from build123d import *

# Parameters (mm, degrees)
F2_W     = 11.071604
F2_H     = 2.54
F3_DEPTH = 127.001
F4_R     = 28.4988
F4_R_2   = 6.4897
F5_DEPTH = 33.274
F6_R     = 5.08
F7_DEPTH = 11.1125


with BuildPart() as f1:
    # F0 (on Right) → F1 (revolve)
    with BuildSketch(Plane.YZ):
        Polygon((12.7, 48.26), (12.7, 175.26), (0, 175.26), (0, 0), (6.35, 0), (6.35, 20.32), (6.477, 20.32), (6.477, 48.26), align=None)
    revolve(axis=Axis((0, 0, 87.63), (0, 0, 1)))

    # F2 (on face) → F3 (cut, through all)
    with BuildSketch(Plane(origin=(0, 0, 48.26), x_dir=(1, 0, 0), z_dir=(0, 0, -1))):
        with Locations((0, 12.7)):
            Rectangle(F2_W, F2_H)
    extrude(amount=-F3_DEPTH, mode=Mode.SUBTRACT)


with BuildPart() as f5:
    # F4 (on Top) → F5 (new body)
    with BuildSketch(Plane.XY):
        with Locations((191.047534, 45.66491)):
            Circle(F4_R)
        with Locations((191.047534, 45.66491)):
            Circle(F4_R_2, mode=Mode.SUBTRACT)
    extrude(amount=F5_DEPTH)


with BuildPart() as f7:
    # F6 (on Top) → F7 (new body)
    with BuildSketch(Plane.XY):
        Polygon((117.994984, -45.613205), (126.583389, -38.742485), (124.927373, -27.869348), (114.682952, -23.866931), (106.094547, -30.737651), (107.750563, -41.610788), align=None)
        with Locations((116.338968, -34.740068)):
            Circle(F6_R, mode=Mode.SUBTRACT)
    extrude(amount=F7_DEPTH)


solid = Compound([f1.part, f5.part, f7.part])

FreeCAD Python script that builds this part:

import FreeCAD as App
import Part
import Sketcher
Q = App.Units.Quantity

doc = App.newDocument("Part")
body = doc.addObject("PartDesign::Body", "Body")

# Sketch on YZ plane
sketch1 = doc.addObject("Sketcher::SketchObject", "Sketch")
body.addObject(sketch1)
sketch1.AttachmentSupport = (doc.YZ_Plane, [""])
sketch1.MapMode = "FlatFace"
sketch1.addGeometry(Part.LineSegment(App.Vector(12.7, 48.26, 0), App.Vector(12.7, 175.26, 0)), False)
sketch1.addGeometry(Part.LineSegment(App.Vector(12.7, 175.26, 0), App.Vector(0, 175.26, 0)), False)
sketch1.addGeometry(Part.LineSegment(App.Vector(0, 175.26, 0), App.Vector(0, 0, 0)), False)
sketch1.addGeometry(Part.LineSegment(App.Vector(0, 0, 0), App.Vector(6.35, 0, 0)), False)
sketch1.addGeometry(Part.LineSegment(App.Vector(6.35, 0, 0), App.Vector(6.35, 20.32, 0)), False)
sketch1.addGeometry(Part.LineSegment(App.Vector(6.35, 20.32, 0), App.Vector(6.477, 20.32, 0)), False)
sketch1.addGeometry(Part.LineSegment(App.Vector(6.477, 20.32, 0), App.Vector(6.477, 48.26, 0)), False)
sketch1.addGeometry(Part.LineSegment(App.Vector(6.477, 48.26, 0), App.Vector(12.7, 48.26, 0)), False)
sketch1.addConstraint(Sketcher.Constraint("Coincident", 0, 2, 1, 1))
sketch1.addConstraint(Sketcher.Constraint("Coincident", 1, 2, 2, 1))
sketch1.addConstraint(Sketcher.Constraint("Coincident", 2, 2, 3, 1))
sketch1.addConstraint(Sketcher.Constraint("Coincident", 3, 2, 4, 1))
sketch1.addConstraint(Sketcher.Constraint("Coincident", 4, 2, 5, 1))
sketch1.addConstraint(Sketcher.Constraint("Coincident", 5, 2, 6, 1))
sketch1.addConstraint(Sketcher.Constraint("Coincident", 6, 2, 7, 1))
sketch1.addConstraint(Sketcher.Constraint("Coincident", 7, 2, 0, 1))
sketch1.addConstraint(Sketcher.Constraint("Vertical", 0))
sketch1.addConstraint(Sketcher.Constraint("Horizontal", 1))
sketch1.addConstraint(Sketcher.Constraint("Vertical", 2))
sketch1.addConstraint(Sketcher.Constraint("Horizontal", 3))
sketch1.addConstraint(Sketcher.Constraint("Vertical", 4))
sketch1.addConstraint(Sketcher.Constraint("Horizontal", 5))
sketch1.addConstraint(Sketcher.Constraint("Vertical", 6))
sketch1.addConstraint(Sketcher.Constraint("Horizontal", 7))
sketch1.addConstraint(Sketcher.Constraint("Coincident", 2, 2, -1, 1))
sketch1.addConstraint(Sketcher.Constraint("DistanceY", 0, 1, 0, 2, Q("5 in")))
sketch1.addConstraint(Sketcher.Constraint("DistanceX", 1, 2, 1, 1, Q("0.5 in")))
sketch1.addConstraint(Sketcher.Constraint("DistanceY", 2, 2, 2, 1, Q("6.9 in")))
sketch1.addConstraint(Sketcher.Constraint("DistanceY", 4, 1, 4, 2, Q("0.8 in")))
sketch1.addConstraint(Sketcher.Constraint("DistanceX", 3, 1, 3, 2, Q("0.25 in")))
sketch1.addConstraint(Sketcher.Constraint("DistanceX", 5, 1, 5, 2, Q("0.005 in")))
revolution = doc.addObject("PartDesign::Revolution", "Revolution")
body.addObject(revolution)
revolution.Profile = sketch1
revolution.ReferenceAxis = (sketch1, ["V_Axis"])
revolution.Angle = 360

# Sketch on XY plane
sketch2 = doc.addObject("Sketcher::SketchObject", "Sketch001")
body.addObject(sketch2)
sketch2.AttachmentSupport = (doc.XY_Plane, [""])
sketch2.MapMode = "FlatFace"
sketch2.AttachmentOffset = App.Placement(App.Vector(0, 0, 1.9 * 25.4), App.Rotation())
sketch2.addGeometry(Part.LineSegment(App.Vector(-5.535802, -13.97, 0), App.Vector(-5.535802, -11.43, 0)), False)
sketch2.addGeometry(Part.LineSegment(App.Vector(-5.535802, -11.43, 0), App.Vector(5.535802, -11.43, 0)), False)
sketch2.addGeometry(Part.LineSegment(App.Vector(5.535802, -11.43, 0), App.Vector(5.535802, -13.97, 0)), False)
sketch2.addGeometry(Part.LineSegment(App.Vector(5.535802, -13.97, 0), App.Vector(-5.535802, -13.97, 0)), False)
sketch2.addConstraint(Sketcher.Constraint("Coincident", 0, 2, 1, 1))
sketch2.addConstraint(Sketcher.Constraint("Coincident", 1, 2, 2, 1))
sketch2.addConstraint(Sketcher.Constraint("Coincident", 2, 2, 3, 1))
sketch2.addConstraint(Sketcher.Constraint("Coincident", 3, 2, 0, 1))
sketch2.addConstraint(Sketcher.Constraint("Vertical", 0))
sketch2.addConstraint(Sketcher.Constraint("Horizontal", 1))
sketch2.addConstraint(Sketcher.Constraint("Vertical", 2))
sketch2.addConstraint(Sketcher.Constraint("Horizontal", 3))
sketch2.addConstraint(Sketcher.Constraint("DistanceY", 0, 1, 0, 2, Q("0.1 in")))
sketch2.addConstraint(Sketcher.Constraint("DistanceY", 0, 2, -1, 1, Q("0.45 in")))
sketch2.addConstraint(Sketcher.Constraint("DistanceX", 1, 1, 1, 2, 11.071604))
sketch2.addConstraint(Sketcher.Constraint("DistanceX", 0, 2, -1, 1, 5.535802))
pocket1 = doc.addObject("PartDesign::Pocket", "Pocket")
body.addObject(pocket1)
pocket1.Profile = sketch2
pocket1.Type = "ThroughAll"
pocket1.Reversed = True
body2 = doc.addObject("PartDesign::Body", "Body001")

# Sketch on XY plane
sketch3 = doc.addObject("Sketcher::SketchObject", "Sketch002")
body2.addObject(sketch3)
sketch3.AttachmentSupport = (doc.getObject("XY_Plane001"), [""])
sketch3.MapMode = "FlatFace"
sketch3.addGeometry(Part.Circle(App.Vector(191.047534, 45.66491, 0), App.Vector(0, 0, 1), 28.4988), False)
sketch3.addGeometry(Part.Circle(App.Vector(191.047534, 45.66491, 0), App.Vector(0, 0, 1), 6.4897), False)
sketch3.addConstraint(Sketcher.Constraint("Coincident", 1, 3, 0, 3))
sketch3.addConstraint(Sketcher.Constraint("Diameter", 0, Q("2.244 in")))
sketch3.addConstraint(Sketcher.Constraint("Diameter", 1, Q("0.511 in")))
sketch3.addConstraint(Sketcher.Constraint("DistanceY", -1, 1, 0, 3, 45.66491))
sketch3.addConstraint(Sketcher.Constraint("DistanceX", -1, 1, 0, 3, 191.047534))
pad1 = doc.addObject("PartDesign::Pad", "Pad")
body2.addObject(pad1)
pad1.Profile = sketch3
pad1.Length = Q("1.31 in")
body3 = doc.addObject("PartDesign::Body", "Body002")

# Sketch on XY plane
sketch4 = doc.addObject("Sketcher::SketchObject", "Sketch003")
body3.addObject(sketch4)
sketch4.AttachmentSupport = (doc.getObject("XY_Plane002"), [""])
sketch4.MapMode = "FlatFace"
sketch4.addGeometry(Part.LineSegment(App.Vector(117.994984, -45.613205, 0), App.Vector(126.583389, -38.742485, 0)), False)
sketch4.addGeometry(Part.LineSegment(App.Vector(126.583389, -38.742485, 0), App.Vector(124.927373, -27.869348, 0)), False)
sketch4.addGeometry(Part.LineSegment(App.Vector(124.927373, -27.869348, 0), App.Vector(114.682952, -23.866931, 0)), False)
sketch4.addGeometry(Part.LineSegment(App.Vector(114.682952, -23.866931, 0), App.Vector(106.094547, -30.737651, 0)), False)
sketch4.addGeometry(Part.LineSegment(App.Vector(106.094547, -30.737651, 0), App.Vector(107.750563, -41.610788, 0)), False)
sketch4.addGeometry(Part.LineSegment(App.Vector(107.750563, -41.610788, 0), App.Vector(117.994984, -45.613205, 0)), False)
sketch4.addGeometry(Part.Circle(App.Vector(116.338968, -34.740068, 0), App.Vector(0, 0, 1), 5.08), False)
sketch4.addConstraint(Sketcher.Constraint("Coincident", 0, 2, 1, 1))
sketch4.addConstraint(Sketcher.Constraint("Coincident", 1, 2, 2, 1))
sketch4.addConstraint(Sketcher.Constraint("Coincident", 2, 2, 3, 1))
sketch4.addConstraint(Sketcher.Constraint("Coincident", 3, 2, 4, 1))
sketch4.addConstraint(Sketcher.Constraint("Coincident", 4, 2, 5, 1))
sketch4.addConstraint(Sketcher.Constraint("Coincident", 5, 2, 0, 1))
sketch4.addConstraint(Sketcher.Constraint("Parallel", 0, 3))
sketch4.addConstraint(Sketcher.Constraint("Parallel", 1, 4))
sketch4.addConstraint(Sketcher.Constraint("Parallel", 2, 5))
sketch4.addConstraint(Sketcher.Constraint("Equal", 0, 1))
sketch4.addConstraint(Sketcher.Constraint("Equal", 1, 2))
sketch4.addConstraint(Sketcher.Constraint("Equal", 2, 3))
sketch4.addConstraint(Sketcher.Constraint("Diameter", 6, Q("0.4 in")))
sketch4.addConstraint(Sketcher.Constraint("DistanceX", -1, 1, 0, 2, 126.583389))
sketch4.addConstraint(Sketcher.Constraint("DistanceX", -1, 1, 2, 2, 114.682952))
sketch4.addConstraint(Sketcher.Constraint("DistanceY", 2, 2, -1, 1, 23.866931))
sketch4.addConstraint(Sketcher.Constraint("DistanceY", 3, 2, -1, 1, 30.737651))
sketch4.addConstraint(Sketcher.Constraint("DistanceX", 6, 3, 0, 2, 10.244421))
sketch4.addConstraint(Sketcher.Constraint("DistanceY", 6, 3, 1, 2, 6.87072))
sketch4.addConstraint(Sketcher.Constraint("DistanceX", 2, 2, 1, 2, 10.244421))
sketch4.addConstraint(Sketcher.Constraint("DistanceX", 3, 2, 6, 3, 10.244421))
pad2 = doc.addObject("PartDesign::Pad", "Pad001")
body3.addObject(pad2)
pad2.Profile = sketch4
pad2.Length = Q("0.4375 in")

doc.recompute()
